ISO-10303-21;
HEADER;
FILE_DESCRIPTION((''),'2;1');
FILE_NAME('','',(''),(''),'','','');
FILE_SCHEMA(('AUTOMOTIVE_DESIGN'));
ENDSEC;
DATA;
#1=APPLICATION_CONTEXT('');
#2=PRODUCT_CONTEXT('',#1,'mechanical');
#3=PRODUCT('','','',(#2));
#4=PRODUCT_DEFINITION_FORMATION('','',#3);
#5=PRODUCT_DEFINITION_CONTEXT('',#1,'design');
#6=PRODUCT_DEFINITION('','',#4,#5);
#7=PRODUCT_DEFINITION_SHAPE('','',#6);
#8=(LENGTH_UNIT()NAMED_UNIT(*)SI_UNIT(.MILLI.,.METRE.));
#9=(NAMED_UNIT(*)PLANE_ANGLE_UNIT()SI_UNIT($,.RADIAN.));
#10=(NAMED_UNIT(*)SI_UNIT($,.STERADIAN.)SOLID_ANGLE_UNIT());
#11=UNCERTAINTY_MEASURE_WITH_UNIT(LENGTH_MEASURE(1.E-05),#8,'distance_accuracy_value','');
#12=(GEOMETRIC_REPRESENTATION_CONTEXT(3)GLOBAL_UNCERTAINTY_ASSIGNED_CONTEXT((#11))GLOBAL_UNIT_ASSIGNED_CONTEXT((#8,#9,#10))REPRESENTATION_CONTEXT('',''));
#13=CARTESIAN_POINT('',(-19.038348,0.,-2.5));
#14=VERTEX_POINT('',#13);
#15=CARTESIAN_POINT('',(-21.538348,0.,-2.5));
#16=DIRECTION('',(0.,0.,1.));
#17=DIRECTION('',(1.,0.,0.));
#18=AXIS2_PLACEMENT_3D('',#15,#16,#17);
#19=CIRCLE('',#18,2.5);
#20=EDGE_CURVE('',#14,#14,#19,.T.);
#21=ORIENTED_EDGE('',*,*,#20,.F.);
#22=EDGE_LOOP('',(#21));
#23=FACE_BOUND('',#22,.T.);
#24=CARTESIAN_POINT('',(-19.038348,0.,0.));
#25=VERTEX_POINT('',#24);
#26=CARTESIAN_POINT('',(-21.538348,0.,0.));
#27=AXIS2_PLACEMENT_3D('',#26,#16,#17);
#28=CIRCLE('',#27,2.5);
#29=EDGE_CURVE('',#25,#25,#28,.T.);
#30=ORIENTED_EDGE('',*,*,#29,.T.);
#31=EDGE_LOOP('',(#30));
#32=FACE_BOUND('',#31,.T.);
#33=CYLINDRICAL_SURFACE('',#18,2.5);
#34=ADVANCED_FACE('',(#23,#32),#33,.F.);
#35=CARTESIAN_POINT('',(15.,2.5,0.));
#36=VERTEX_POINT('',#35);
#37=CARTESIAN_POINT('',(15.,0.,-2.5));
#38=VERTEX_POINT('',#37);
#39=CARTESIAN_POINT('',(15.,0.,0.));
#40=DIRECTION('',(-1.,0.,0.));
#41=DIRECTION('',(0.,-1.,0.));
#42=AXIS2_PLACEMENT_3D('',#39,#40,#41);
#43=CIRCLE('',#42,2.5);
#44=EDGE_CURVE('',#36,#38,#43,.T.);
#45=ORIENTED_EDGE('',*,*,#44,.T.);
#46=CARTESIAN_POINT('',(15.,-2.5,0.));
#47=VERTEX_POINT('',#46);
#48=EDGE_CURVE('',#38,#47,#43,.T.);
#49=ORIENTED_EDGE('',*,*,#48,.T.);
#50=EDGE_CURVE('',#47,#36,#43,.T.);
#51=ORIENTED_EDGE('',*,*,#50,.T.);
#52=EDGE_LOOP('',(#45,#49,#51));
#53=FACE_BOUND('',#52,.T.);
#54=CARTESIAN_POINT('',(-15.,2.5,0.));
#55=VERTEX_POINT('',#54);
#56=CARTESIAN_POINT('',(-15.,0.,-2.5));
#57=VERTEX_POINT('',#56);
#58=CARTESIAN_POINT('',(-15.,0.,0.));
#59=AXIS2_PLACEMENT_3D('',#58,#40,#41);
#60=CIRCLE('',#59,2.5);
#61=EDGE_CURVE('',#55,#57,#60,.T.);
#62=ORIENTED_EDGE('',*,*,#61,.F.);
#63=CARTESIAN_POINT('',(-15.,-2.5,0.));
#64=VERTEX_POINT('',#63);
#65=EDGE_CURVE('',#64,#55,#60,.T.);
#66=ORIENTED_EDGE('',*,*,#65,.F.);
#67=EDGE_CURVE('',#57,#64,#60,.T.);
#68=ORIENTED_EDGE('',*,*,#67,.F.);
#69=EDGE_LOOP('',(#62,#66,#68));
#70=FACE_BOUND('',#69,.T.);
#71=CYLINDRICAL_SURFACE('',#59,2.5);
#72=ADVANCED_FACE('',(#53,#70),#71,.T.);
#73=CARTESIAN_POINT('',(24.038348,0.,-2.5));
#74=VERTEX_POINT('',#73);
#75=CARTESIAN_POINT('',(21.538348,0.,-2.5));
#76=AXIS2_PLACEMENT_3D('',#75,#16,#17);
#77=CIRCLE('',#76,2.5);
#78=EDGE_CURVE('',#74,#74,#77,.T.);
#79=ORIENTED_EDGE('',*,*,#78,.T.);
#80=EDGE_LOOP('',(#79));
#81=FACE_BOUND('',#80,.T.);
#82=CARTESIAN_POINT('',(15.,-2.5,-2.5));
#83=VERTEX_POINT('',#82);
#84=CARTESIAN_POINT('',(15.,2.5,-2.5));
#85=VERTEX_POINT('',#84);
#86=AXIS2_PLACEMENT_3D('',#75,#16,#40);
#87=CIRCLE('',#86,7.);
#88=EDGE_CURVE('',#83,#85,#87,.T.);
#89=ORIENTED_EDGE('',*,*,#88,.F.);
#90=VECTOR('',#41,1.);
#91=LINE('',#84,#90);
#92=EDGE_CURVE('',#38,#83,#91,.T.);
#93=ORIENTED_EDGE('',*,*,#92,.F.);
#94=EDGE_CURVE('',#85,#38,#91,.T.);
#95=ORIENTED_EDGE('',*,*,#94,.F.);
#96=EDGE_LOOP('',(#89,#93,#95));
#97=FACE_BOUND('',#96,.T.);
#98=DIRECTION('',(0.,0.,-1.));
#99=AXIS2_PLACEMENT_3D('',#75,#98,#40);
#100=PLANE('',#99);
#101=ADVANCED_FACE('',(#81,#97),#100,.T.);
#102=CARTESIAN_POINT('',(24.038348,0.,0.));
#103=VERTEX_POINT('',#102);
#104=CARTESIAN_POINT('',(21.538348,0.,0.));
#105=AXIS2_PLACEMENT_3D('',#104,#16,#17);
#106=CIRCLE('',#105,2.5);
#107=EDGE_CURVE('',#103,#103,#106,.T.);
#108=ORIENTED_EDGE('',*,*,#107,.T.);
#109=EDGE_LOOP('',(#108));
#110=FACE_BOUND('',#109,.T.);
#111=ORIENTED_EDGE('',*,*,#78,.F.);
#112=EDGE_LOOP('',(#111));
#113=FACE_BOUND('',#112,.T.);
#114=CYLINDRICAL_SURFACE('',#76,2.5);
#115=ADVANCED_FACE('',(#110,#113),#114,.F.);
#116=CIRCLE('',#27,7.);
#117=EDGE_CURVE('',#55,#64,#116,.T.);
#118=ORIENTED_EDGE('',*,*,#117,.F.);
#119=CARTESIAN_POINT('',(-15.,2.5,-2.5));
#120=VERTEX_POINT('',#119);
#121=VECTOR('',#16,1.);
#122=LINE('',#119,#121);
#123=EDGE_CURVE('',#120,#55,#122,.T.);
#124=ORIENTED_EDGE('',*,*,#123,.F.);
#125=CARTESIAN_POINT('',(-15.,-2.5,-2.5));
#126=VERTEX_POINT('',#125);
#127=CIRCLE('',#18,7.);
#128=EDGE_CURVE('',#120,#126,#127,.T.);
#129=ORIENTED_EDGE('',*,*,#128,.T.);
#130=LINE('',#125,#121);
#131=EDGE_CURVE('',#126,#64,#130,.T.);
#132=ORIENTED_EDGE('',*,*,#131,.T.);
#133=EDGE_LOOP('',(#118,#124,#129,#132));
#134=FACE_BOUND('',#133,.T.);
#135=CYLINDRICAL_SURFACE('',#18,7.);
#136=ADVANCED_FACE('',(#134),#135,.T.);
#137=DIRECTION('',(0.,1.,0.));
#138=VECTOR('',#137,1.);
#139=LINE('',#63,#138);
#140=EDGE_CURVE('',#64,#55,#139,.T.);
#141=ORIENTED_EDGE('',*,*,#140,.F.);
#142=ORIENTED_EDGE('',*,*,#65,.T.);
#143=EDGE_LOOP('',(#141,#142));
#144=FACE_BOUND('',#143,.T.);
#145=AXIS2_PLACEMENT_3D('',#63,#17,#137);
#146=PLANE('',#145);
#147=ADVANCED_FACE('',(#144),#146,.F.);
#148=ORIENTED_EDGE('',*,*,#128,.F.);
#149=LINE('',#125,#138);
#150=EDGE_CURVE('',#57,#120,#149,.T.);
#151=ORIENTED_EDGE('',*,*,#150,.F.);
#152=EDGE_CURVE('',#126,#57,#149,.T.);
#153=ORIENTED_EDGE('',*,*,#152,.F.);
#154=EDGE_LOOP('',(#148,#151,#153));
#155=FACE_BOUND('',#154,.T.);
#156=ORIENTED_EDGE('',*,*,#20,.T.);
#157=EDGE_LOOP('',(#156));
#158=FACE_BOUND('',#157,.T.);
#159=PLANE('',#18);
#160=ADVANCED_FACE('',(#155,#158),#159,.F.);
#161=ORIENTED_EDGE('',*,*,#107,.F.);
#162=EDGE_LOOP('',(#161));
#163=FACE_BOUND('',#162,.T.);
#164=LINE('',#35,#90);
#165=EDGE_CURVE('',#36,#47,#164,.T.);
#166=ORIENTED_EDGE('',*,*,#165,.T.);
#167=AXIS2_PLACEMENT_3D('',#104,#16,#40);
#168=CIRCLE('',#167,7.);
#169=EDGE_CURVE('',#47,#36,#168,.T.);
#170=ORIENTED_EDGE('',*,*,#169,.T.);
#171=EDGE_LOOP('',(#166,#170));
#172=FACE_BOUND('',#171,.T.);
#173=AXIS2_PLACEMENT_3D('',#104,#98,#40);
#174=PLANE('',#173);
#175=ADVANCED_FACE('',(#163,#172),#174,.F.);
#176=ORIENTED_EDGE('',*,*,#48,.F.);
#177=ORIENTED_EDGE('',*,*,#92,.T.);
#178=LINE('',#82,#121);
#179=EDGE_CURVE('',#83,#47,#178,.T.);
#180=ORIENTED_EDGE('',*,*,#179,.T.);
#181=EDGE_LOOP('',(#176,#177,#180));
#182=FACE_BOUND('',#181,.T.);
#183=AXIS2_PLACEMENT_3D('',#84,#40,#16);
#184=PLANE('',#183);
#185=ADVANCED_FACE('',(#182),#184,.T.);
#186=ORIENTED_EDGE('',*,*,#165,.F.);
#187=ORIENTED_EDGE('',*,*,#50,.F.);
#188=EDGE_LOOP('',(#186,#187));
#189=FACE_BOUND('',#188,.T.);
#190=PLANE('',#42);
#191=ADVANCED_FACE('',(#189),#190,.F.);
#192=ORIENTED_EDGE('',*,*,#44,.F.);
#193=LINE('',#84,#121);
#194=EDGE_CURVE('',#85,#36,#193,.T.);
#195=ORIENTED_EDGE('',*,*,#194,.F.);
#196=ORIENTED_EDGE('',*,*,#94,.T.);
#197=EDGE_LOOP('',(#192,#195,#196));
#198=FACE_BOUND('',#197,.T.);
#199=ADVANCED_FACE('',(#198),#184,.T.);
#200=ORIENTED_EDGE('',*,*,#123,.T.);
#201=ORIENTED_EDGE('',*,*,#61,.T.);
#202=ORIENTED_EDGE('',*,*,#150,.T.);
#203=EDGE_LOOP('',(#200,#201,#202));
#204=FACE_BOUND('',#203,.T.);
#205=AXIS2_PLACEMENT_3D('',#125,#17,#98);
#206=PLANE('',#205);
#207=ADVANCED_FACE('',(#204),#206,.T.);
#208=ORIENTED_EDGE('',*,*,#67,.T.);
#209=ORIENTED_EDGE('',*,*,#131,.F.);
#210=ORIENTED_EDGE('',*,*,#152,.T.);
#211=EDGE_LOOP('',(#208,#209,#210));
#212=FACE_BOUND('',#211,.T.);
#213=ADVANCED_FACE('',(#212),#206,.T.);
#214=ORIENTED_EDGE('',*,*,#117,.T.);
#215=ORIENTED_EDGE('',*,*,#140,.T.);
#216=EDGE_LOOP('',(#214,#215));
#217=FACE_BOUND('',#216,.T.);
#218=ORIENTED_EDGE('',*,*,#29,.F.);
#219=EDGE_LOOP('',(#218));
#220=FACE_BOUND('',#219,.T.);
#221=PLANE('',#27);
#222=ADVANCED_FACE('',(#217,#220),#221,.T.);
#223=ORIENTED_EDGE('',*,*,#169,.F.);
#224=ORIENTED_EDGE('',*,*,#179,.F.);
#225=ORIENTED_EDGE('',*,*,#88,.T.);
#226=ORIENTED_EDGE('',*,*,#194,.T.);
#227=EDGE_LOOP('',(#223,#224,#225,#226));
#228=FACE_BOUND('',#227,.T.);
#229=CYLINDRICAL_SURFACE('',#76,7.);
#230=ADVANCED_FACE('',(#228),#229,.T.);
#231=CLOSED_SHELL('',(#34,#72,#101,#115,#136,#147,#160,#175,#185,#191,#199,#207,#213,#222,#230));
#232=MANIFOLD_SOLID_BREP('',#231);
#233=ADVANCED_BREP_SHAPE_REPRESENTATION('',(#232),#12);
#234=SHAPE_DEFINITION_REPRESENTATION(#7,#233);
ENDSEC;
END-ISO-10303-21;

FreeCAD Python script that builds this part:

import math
import FreeCAD as App
import Part
import Sketcher

V = App.Vector

doc = App.newDocument("Part")
body = doc.addObject("PartDesign::Body", "Body")

# Sketch on XY plane
sketch1 = doc.addObject("Sketcher::SketchObject", "Sketch")
body.addObject(sketch1)
sketch1.AttachmentSupport = (doc.XY_Plane, [""])
sketch1.MapMode = "FlatFace"
sketch1.addGeometry(Part.LineSegment(V(-15, 2.5, 0), V(-15, 0, 0)), False)
sketch1.addGeometry(Part.LineSegment(V(-15, 0, 0), V(15, 0, 0)), False)
sketch1.addGeometry(Part.LineSegment(V(15, 0, 0), V(15, 2.5, 0)), False)
sketch1.addGeometry(Part.LineSegment(V(15, 2.5, 0), V(-15, 2.5, 0)), False)
sketch1.addConstraint(Sketcher.Constraint("Coincident", 0, 2, 1, 1))
sketch1.addConstraint(Sketcher.Constraint("Coincident", 1, 2, 2, 1))
sketch1.addConstraint(Sketcher.Constraint("Coincident", 2, 2, 3, 1))
sketch1.addConstraint(Sketcher.Constraint("Coincident", 3, 2, 0, 1))
sketch1.addConstraint(Sketcher.Constraint("Vertical", 0))
sketch1.addConstraint(Sketcher.Constraint("Horizontal", 1))
sketch1.addConstraint(Sketcher.Constraint("Vertical", 2))
sketch1.addConstraint(Sketcher.Constraint("Horizontal", 3))
sketch1.addConstraint(Sketcher.Constraint("Symmetric", 0, 2, 1, 2, -1, 1))
sketch1.addConstraint(Sketcher.Constraint("DistanceX", 1, 1, 1, 2, 30.0))
sketch1.addConstraint(Sketcher.Constraint("DistanceY", 0, 2, 0, 1, 2.5))
revolution = doc.addObject("PartDesign::Revolution", "Revolution")
body.addObject(revolution)
revolution.Profile = sketch1
revolution.ReferenceAxis = (sketch1, ["H_Axis"])
revolution.Angle = 360

# Sketch on XY plane
sketch2 = doc.addObject("Sketcher::SketchObject", "Sketch001")
body.addObject(sketch2)
sketch2.AttachmentSupport = (doc.XY_Plane, [""])
sketch2.MapMode = "FlatFace"
sketch2.addGeometry(Part.LineSegment(V(15, 2.5, 0), V(15, -2.5, 0)), False)
sketch2.addGeometry(Part.ArcOfCircle(Part.Circle(V(21.5, 0, 0), V(0, 0, 1), 7), math.radians(-159), math.radians(159)), False)
sketch2.addGeometry(Part.Circle(V(21.5, 0, 0), V(0, 0, 1), 2.5), False)
sketch2.addGeometry(Part.LineSegment(V(-15, -2.5, 0), V(-15, 2.5, 0)), False)
sketch2.addGeometry(Part.ArcOfCircle(Part.Circle(V(-21.5, 0, 0), V(0, 0, 1), 7), math.radians(21), math.radians(339)), False)
sketch2.addGeometry(Part.Circle(V(-21.5, 0, 0), V(0, 0, 1), 2.5), False)
sketch2.addConstraint(Sketcher.Constraint("Coincident", 0, 1, 1, 2))
sketch2.addConstraint(Sketcher.Constraint("Coincident", 1, 1, 0, 2))
sketch2.addConstraint(Sketcher.Constraint("Coincident", 3, 1, 4, 2))
sketch2.addConstraint(Sketcher.Constraint("Coincident", 4, 1, 3, 2))
sketch2.addConstraint(Sketcher.Constraint("Vertical", 0))
sketch2.addConstraint(Sketcher.Constraint("Vertical", 3))
sketch2.addConstraint(Sketcher.Constraint("Coincident", 2, 3, 1, 3))
sketch2.addConstraint(Sketcher.Constraint("Coincident", 5, 3, 4, 3))
sketch2.addConstraint(Sketcher.Constraint("Equal", 1, 4))
sketch2.addConstraint(Sketcher.Constraint("Equal", 2, 5))
sketch2.addConstraint(Sketcher.Constraint("Symmetric", 1, 3, 4, 3, -1, 1))
sketch2.addConstraint(Sketcher.Constraint("Symmetric", 1, 1, 3, 1, -2))
sketch2.addConstraint(Sketcher.Constraint("Diameter", 2, 5.0))
sketch2.addConstraint(Sketcher.Constraint("Radius", 1, 7.0))
sketch2.addConstraint(Sketcher.Constraint("DistanceY", 0, 2, 0, 1, 5.0))
sketch2.addConstraint(Sketcher.Constraint("DistanceX", -1, 1, 0, 1, 15.0))
pad1 = doc.addObject("PartDesign::Pad", "Pad")
body.addObject(pad1)
pad1.Profile = sketch2
pad1.Length = 2.5
pad1.Reversed = True

doc.recompute()
